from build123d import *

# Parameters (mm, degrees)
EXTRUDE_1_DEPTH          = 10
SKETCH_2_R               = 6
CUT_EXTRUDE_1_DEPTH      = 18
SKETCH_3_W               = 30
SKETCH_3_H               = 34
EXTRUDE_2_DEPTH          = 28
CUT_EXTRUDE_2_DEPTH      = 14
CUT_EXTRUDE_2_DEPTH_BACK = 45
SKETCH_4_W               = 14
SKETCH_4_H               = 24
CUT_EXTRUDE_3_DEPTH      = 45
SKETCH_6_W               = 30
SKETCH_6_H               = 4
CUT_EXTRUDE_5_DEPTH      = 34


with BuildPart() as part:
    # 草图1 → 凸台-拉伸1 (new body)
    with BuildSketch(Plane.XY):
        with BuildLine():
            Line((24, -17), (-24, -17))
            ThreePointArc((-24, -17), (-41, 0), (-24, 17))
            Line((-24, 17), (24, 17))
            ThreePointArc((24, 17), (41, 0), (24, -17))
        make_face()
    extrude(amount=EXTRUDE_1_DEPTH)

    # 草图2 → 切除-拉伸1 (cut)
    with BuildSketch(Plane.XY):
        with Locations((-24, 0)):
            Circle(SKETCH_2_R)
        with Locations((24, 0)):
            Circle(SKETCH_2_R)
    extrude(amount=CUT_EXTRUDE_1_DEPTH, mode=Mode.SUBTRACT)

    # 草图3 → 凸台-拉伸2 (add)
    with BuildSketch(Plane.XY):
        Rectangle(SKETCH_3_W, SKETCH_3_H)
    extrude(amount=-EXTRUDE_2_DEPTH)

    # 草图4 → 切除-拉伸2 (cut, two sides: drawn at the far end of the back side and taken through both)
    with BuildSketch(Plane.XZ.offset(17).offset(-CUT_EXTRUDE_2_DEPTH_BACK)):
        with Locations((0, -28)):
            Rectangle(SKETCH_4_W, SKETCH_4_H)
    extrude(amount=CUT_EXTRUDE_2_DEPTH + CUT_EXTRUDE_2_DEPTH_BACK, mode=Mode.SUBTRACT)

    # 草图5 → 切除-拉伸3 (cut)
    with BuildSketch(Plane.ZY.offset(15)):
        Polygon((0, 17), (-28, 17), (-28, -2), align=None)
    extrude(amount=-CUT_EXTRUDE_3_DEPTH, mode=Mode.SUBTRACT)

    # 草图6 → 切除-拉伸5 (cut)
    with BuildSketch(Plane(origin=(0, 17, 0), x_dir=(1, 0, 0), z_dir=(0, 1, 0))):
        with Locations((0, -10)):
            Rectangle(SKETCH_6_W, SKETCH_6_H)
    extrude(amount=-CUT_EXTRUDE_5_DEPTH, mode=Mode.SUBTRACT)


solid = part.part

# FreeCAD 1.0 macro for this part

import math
import FreeCAD as App
import Part
import Sketcher
from FreeCAD import Vector
Q = App.Units.Quantity

doc = App.newDocument("Part")
body = doc.addObject("PartDesign::Body", "Body")

# Sketch on XY plane
sketch1 = body.newObject("Sketcher::SketchObject", "Sketch")
sketch1.AttachmentSupport = (doc.getObject("XY_Plane"), [""])
sketch1.MapMode = "FlatFace"
sketch1.addGeometry([
    Part.LineSegment(Vector(-24, -17, 0), Vector(24, -17, 0)),
    Part.ArcOfCircle(Part.Circle(Vector(24, 0, 0), Vector(0, 0, 1), 17), math.radians(-90), math.radians(90)),
    Part.LineSegment(Vector(24, 17, 0), Vector(-24, 17, 0)),
    Part.ArcOfCircle(Part.Circle(Vector(-24, 0, 0), Vector(0, 0, 1), 17), math.radians(90), math.radians(270)),
], False)
sketch1.addConstraint([
    Sketcher.Constraint("Tangent", 0, 2, 1, 1),
    Sketcher.Constraint("Tangent", 1, 2, 2, 1),
    Sketcher.Constraint("Tangent", 2, 2, 3, 1),
    Sketcher.Constraint("Tangent", 3, 2, 0, 1),
    Sketcher.Constraint("Horizontal", 0),
    Sketcher.Constraint("Horizontal", 2),
    Sketcher.Constraint("Symmetric", 1, 3, 3, 3, -1, 1),
    Sketcher.Constraint("Radius", 1, Q("17 mm")),
    Sketcher.Constraint("DistanceX", 0, 1, 0, 2, Q("48 mm")),
])
pad1 = body.newObject("PartDesign::Pad", "Pad")
pad1.Profile = sketch1
pad1.Length = 10

# Sketch on XY plane
sketch2 = body.newObject("Sketcher::SketchObject", "Sketch001")
sketch2.AttachmentSupport = (doc.getObject("XY_Plane"), [""])
sketch2.MapMode = "FlatFace"
sketch2.addGeometry([
    Part.Circle(Vector(-24, 0, 0), Vector(0, 0, 1), 6),
    Part.Circle(Vector(24, 0, 0), Vector(0, 0, 1), 6),
], False)
sketch2.addConstraint([
    Sketcher.Constraint("Equal", 0, 1),
    Sketcher.Constraint("Symmetric", 0, 3, 1, 3, -1, 1),
    Sketcher.Constraint("PointOnObject", 0, 3, -1),
    Sketcher.Constraint("Diameter", 0, Q("12 mm")),
    Sketcher.Constraint("DistanceX", 0, 3, -1, 1, Q("24 mm")),
])
pocket1 = body.newObject("PartDesign::Pocket", "Pocket")
pocket1.Profile = sketch2
pocket1.Length = 18
pocket1.Reversed = True

# Sketch on XY plane
sketch3 = body.newObject("Sketcher::SketchObject", "Sketch002")
sketch3.AttachmentSupport = (doc.getObject("XY_Plane"), [""])
sketch3.MapMode = "FlatFace"
sketch3.addGeometry([
    Part.LineSegment(Vector(-15, 17, 0), Vector(-15, -17, 0)),
    Part.LineSegment(Vector(-15, -17, 0), Vector(15, -17, 0)),
    Part.LineSegment(Vector(15, -17, 0), Vector(15, 17, 0)),
    Part.LineSegment(Vector(15, 17, 0), Vector(-15, 17, 0)),
], False)
sketch3.addConstraint([
    Sketcher.Constraint("Coincident", 0, 2, 1, 1),
    Sketcher.Constraint("Coincident", 1, 2, 2, 1),
    Sketcher.Constraint("Coincident", 2, 2, 3, 1),
    Sketcher.Constraint("Coincident", 3, 2, 0, 1),
    Sketcher.Constraint("Vertical", 0),
    Sketcher.Constraint("Horizontal", 1),
    Sketcher.Constraint("Vertical", 2),
    Sketcher.Constraint("Horizontal", 3),
    Sketcher.Constraint("Symmetric", 0, 2, 2, 2, -1, 1),
    Sketcher.Constraint("DistanceX", 1, 1, 1, 2, Q("30 mm")),
    Sketcher.Constraint("DistanceY", 0, 2, 0, 1, Q("34 mm")),
])
pad2 = body.newObject("PartDesign::Pad", "Pad001")
pad2.Profile = sketch3
pad2.Length = 28
pad2.Reversed = True

# Sketch on XZ plane
sketch4 = body.newObject("Sketcher::SketchObject", "Sketch003")
sketch4.AttachmentSupport = (doc.getObject("XZ_Plane"), [""])
sketch4.MapMode = "FlatFace"
sketch4.AttachmentOffset = App.Placement(Vector(0, 0, 17), App.Rotation())
sketch4.addGeometry([
    Part.LineSegment(Vector(-7, -16, 0), Vector(-7, -40, 0)),
    Part.LineSegment(Vector(-7, -40, 0), Vector(7, -40, 0)),
    Part.LineSegment(Vector(7, -40, 0), Vector(7, -16, 0)),
    Part.LineSegment(Vector(7, -16, 0), Vector(-7, -16, 0)),
], False)
sketch4.addConstraint([
    Sketcher.Constraint("Coincident", 0, 2, 1, 1),
    Sketcher.Constraint("Coincident", 1, 2, 2, 1),
    Sketcher.Constraint("Coincident", 2, 2, 3, 1),
    Sketcher.Constraint("Coincident", 3, 2, 0, 1),
    Sketcher.Constraint("Vertical", 0),
    Sketcher.Constraint("Horizontal", 1),
    Sketcher.Constraint("Vertical", 2),
    Sketcher.Constraint("Horizontal", 3),
    Sketcher.Constraint("DistanceX", 1, 1, 1, 2, Q("14 mm")),
    Sketcher.Constraint("DistanceY", 0, 2, 0, 1, Q("24 mm")),
    Sketcher.Constraint("DistanceX", 0, 2, -1, 1, Q("7 mm")),
    Sketcher.Constraint("DistanceY", 0, 2, -1, 1, Q("40 mm")),
])
pocket2 = body.newObject("PartDesign::Pocket", "Pocket001")
pocket2.Profile = sketch4
pocket2.Type = "ThroughAll"
pocket2.Midplane = True

# Sketch on YZ plane
sketch5 = body.newObject("Sketcher::SketchObject", "Sketch004")
sketch5.AttachmentSupport = (doc.getObject("YZ_Plane"), [""])
sketch5.MapMode = "FlatFace"
sketch5.AttachmentOffset = App.Placement(Vector(0, 0, -15), App.Rotation())
sketch5.addGeometry([
    Part.LineSegment(Vector(17, 0, 0), Vector(17, -28, 0)),
    Part.LineSegment(Vector(17, -28, 0), Vector(-2, -28, 0)),
    Part.LineSegment(Vector(-2, -28, 0), Vector(17, 0, 0)),
], False)
sketch5.addConstraint([
    Sketcher.Constraint("Coincident", 0, 2, 1, 1),
    Sketcher.Constraint("Coincident", 1, 2, 2, 1),
    Sketcher.Constraint("Coincident", 2, 2, 0, 1),
    Sketcher.Constraint("Vertical", 0),
    Sketcher.Constraint("Horizontal", 1),
    Sketcher.Constraint("PointOnObject", 2, 2, -1),
    Sketcher.Constraint("DistanceX", 1, 2, 1, 1, Q("19 mm")),
    Sketcher.Constraint("DistanceY", 0, 2, 0, 1, Q("28 mm")),
    Sketcher.Constraint("DistanceX", -1, 1, 0, 2, Q("17 mm")),
])
pocket3 = body.newObject("PartDesign::Pocket", "Pocket002")
pocket3.Profile = sketch5
pocket3.Length = 45
pocket3.Reversed = True

# Sketch on XZ plane
sketch6 = body.newObject("Sketcher::SketchObject", "Sketch005")
sketch6.AttachmentSupport = (doc.getObject("XZ_Plane"), [""])
sketch6.MapMode = "FlatFace"
sketch6.AttachmentOffset = App.Placement(Vector(0, 0, -17), App.Rotation())
sketch6.addGeometry([
    Part.LineSegment(Vector(-15, 8, 0), Vector(-15, 12, 0)),
    Part.LineSegment(Vector(-15, 12, 0), Vector(15, 12, 0)),
    Part.LineSegment(Vector(15, 12, 0), Vector(15, 8, 0)),
    Part.LineSegment(Vector(15, 8, 0), Vector(-15, 8, 0)),
], False)
sketch6.addConstraint([
    Sketcher.Constraint("Coincident", 0, 2, 1, 1),
    Sketcher.Constraint("Coincident", 1, 2, 2, 1),
    Sketcher.Constraint("Coincident", 2, 2, 3, 1),
    Sketcher.Constraint("Coincident", 3, 2, 0, 1),
    Sketcher.Constraint("Vertical", 0),
    Sketcher.Constraint("Horizontal", 1),
    Sketcher.Constraint("Vertical", 2),
    Sketcher.Constraint("Horizontal", 3),
    Sketcher.Constraint("DistanceX", 1, 1, 1, 2, Q("30 mm")),
    Sketcher.Constraint("DistanceY", 0, 1, 0, 2, Q("4 mm")),
    Sketcher.Constraint("DistanceX", 0, 2, -1, 1, Q("15 mm")),
    Sketcher.Constraint("DistanceY", -1, 1, 0, 2, Q("12 mm")),
])
pocket4 = body.newObject("PartDesign::Pocket", "Pocket003")
pocket4.Profile = sketch6
pocket4.Length = 34
pocket4.Reversed = True

doc.recompute()
